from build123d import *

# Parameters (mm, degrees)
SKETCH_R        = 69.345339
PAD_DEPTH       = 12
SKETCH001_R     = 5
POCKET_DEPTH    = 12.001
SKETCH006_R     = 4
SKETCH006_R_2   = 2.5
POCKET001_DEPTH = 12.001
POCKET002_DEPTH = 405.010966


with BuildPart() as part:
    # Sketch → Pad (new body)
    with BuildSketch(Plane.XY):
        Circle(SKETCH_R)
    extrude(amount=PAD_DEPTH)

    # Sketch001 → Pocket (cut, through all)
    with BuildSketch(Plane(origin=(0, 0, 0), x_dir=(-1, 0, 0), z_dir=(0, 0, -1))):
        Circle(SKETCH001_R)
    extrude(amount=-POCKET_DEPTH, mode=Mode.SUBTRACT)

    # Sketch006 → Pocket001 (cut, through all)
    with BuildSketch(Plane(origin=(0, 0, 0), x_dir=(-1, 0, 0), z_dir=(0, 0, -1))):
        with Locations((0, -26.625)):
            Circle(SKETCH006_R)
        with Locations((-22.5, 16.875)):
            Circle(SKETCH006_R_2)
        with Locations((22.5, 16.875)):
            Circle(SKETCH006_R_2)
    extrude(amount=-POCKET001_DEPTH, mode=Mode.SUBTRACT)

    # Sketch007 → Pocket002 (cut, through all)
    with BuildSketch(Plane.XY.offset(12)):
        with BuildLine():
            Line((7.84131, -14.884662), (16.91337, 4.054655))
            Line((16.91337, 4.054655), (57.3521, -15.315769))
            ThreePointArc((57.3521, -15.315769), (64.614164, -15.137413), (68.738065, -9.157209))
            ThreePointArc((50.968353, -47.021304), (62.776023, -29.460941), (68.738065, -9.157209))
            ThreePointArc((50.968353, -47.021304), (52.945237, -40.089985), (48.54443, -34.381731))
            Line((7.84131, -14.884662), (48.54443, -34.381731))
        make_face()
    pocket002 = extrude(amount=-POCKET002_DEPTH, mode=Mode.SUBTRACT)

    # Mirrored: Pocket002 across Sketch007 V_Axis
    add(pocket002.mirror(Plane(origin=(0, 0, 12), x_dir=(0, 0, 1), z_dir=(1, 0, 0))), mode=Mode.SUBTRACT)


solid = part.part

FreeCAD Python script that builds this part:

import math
import FreeCAD as App
import Part
import Sketcher
Q = App.Units.Quantity

doc = App.newDocument("Part")
params = doc.addObject("Spreadsheet::Sheet", "Params")
for row, (alias, value) in enumerate([
    ("pad1_length", "12 mm"),
    ("sketch2_diameter", "10 mm"),
    ("sketch3_diameter", "8 mm"),
    ("sketch3_diameter2", "5 mm"),
    ("sketch4_radius", "8 mm"),
    ("sketch4_radius2", "8 mm"),
    ("sketch4_length", "21 mm"),
], start=1):
    params.set(f"A{row}", alias)
    params.set(f"B{row}", "=" + value)
    params.setAlias(f"B{row}", alias)

body = doc.addObject("PartDesign::Body", "Body")

# Sketch on XY plane
sketch1 = body.newObject("Sketcher::SketchObject", "Sketch")
sketch1.AttachmentSupport = (doc.getObject("XY_Plane"), [""])
sketch1.MapMode = "FlatFace"
sketch1.addGeometry(Part.Circle(App.Vector(0, 0, 0), App.Vector(0, 0, 1), 69), False)
sketch1.addConstraint(Sketcher.Constraint("Coincident", 0, 3, -1, 1))
sketch1.addConstraint(Sketcher.Constraint("Diameter", 0, Q("138.690678 mm")))
pad1 = body.newObject("PartDesign::Pad", "Pad")
pad1.Profile = sketch1
pad1.setExpression("Length", "Params.pad1_length")

# Sketch on XY plane
sketch2 = body.newObject("Sketcher::SketchObject", "Sketch001")
sketch2.AttachmentSupport = (doc.getObject("XY_Plane"), [""])
sketch2.MapMode = "FlatFace"
sketch2.addGeometry(Part.Circle(App.Vector(0, 0, 0), App.Vector(0, 0, 1), 5), False)
sketch2.addConstraint(Sketcher.Constraint("Coincident", 0, 3, -1, 1))
sketch2.addConstraint(Sketcher.Constraint("Diameter", 0, Q("10 mm")))
sketch2.setExpression("Constraints[1]", "Params.sketch2_diameter")
pocket1 = body.newObject("PartDesign::Pocket", "Pocket")
pocket1.Profile = sketch2
pocket1.Type = "ThroughAll"
pocket1.Reversed = True

# Sketch on XY plane
sketch3 = body.newObject("Sketcher::SketchObject", "Sketch002")
sketch3.AttachmentSupport = (doc.getObject("XY_Plane"), [""])
sketch3.MapMode = "FlatFace"
sketch3.addGeometry(Part.Circle(App.Vector(0, -26.6, 0), App.Vector(0, 0, 1), 4), False)
sketch3.addGeometry(Part.Circle(App.Vector(22.5, 16.9, 0), App.Vector(0, 0, 1), 2.5), False)
sketch3.addGeometry(Part.Circle(App.Vector(-22.5, 16.9, 0), App.Vector(0, 0, 1), 2.5), False)
sketch3.addConstraint(Sketcher.Constraint("Equal", 1, 2))
sketch3.addConstraint(Sketcher.Constraint("Symmetric", 1, 3, 2, 3, -2))
sketch3.addConstraint(Sketcher.Constraint("PointOnObject", 0, 3, -2))
sketch3.addConstraint(Sketcher.Constraint("Diameter", 0, Q("8 mm")))
sketch3.addConstraint(Sketcher.Constraint("Diameter", 1, Q("5 mm")))
sketch3.addConstraint(Sketcher.Constraint("DistanceX", 2, 3, 1, 3, Q("45 mm")))
sketch3.addConstraint(Sketcher.Constraint("DistanceY", 0, 3, 1, 3, Q("43.5 mm")))
sketch3.addConstraint(Sketcher.Constraint("DistanceY", 0, 3, -1, 1, Q("26.625 mm")))
sketch3.setExpression("Constraints[3]", "Params.sketch3_diameter")
sketch3.setExpression("Constraints[4]", "Params.sketch3_diameter2")
pocket2 = body.newObject("PartDesign::Pocket", "Pocket001")
pocket2.Profile = sketch3
pocket2.Type = "ThroughAll"
pocket2.Reversed = True

# Sketch on XY plane
sketch4 = body.newObject("Sketcher::SketchObject", "Sketch003")
sketch4.AttachmentSupport = (doc.getObject("XY_Plane"), [""])
sketch4.MapMode = "FlatFace"
sketch4.AttachmentOffset = App.Placement(App.Vector(0, 0, 12), App.Rotation())
sketch4.addGeometry(Part.LineSegment(App.Vector(16.91337, 4.054655, 0), App.Vector(7.84131, -14.884662, 0)), False)
sketch4.addGeometry(Part.LineSegment(App.Vector(7.84131, -14.884662, 0), App.Vector(48.54443, -34.381731, 0)), False)
sketch4.addGeometry(Part.ArcOfCircle(Part.Circle(App.Vector(45.088406, -41.596709, 0), App.Vector(0, 0, 1), 8), math.radians(-42.69335), math.radians(64.405261)), False)
sketch4.addGeometry(Part.ArcOfCircle(Part.Circle(App.Vector(0.000009, -0.000004, 0), App.Vector(0, 0, 1), 69.34533), math.radians(-42.693361), math.radians(-7.588199)), False)
sketch4.addGeometry(Part.ArcOfCircle(Part.Circle(App.Vector(60.808123, -8.100791, 0), App.Vector(0, 0, 1), 8), math.radians(-115.594731), math.radians(-7.588203)), False)
sketch4.addGeometry(Part.LineSegment(App.Vector(57.3521, -15.315769, 0), App.Vector(16.91337, 4.054655, 0)), False)
sketch4.addConstraint(Sketcher.Constraint("Coincident", 0, 2, 1, 1))
sketch4.addConstraint(Sketcher.Constraint("Coincident", 1, 2, 2, 2))
sketch4.addConstraint(Sketcher.Constraint("Coincident", 2, 1, 3, 1))
sketch4.addConstraint(Sketcher.Constraint("Coincident", 3, 2, 4, 2))
sketch4.addConstraint(Sketcher.Constraint("Coincident", 4, 1, 5, 1))
sketch4.addConstraint(Sketcher.Constraint("Coincident", 5, 2, 0, 1))
sketch4.addConstraint(Sketcher.Constraint("Coincident", 3, 3, -1, 1))
sketch4.addConstraint(Sketcher.Constraint("Radius", 2, Q("8 mm")))
sketch4.addConstraint(Sketcher.Constraint("Radius", 4, Q("8 mm")))
sketch4.addConstraint(Sketcher.Constraint("Distance", 0, Q("21 mm")))
sketch4.addConstraint(Sketcher.Constraint("Radius", 3, Q("69.34533 mm")))
sketch4.addConstraint(Sketcher.Constraint("DistanceX", -1, 1, 4, 1, Q("57.3521 mm")))
sketch4.addConstraint(Sketcher.Constraint("DistanceX", 3, 3, 0, 2, Q("7.841301 mm")))
sketch4.addConstraint(Sketcher.Constraint("DistanceY", 2, 1, 3, 3, Q("47.0213 mm")))
sketch4.addConstraint(Sketcher.Constraint("DistanceY", 2, 3, 3, 2, Q("32.4395 mm")))
sketch4.addConstraint(Sketcher.Constraint("DistanceY", 2, 3, -1, 1, Q("41.596709 mm")))
sketch4.addConstraint(Sketcher.Constraint("DistanceY", 4, 3, -1, 1, Q("8.100791 mm")))
sketch4.addConstraint(Sketcher.Constraint("DistanceX", -1, 1, 1, 2, Q("48.54443 mm")))
sketch4.addConstraint(Sketcher.Constraint("DistanceX", -1, 1, 5, 2, Q("16.91337 mm")))
sketch4.addConstraint(Sketcher.Constraint("DistanceY", 0, 2, 3, 3, Q("14.884658 mm")))
sketch4.setExpression("Constraints[7]", "Params.sketch4_radius")
sketch4.setExpression("Constraints[8]", "Params.sketch4_radius2")
sketch4.setExpression("Constraints[9]", "Params.sketch4_length")
pocket3 = body.newObject("PartDesign::Pocket", "Pocket002")
pocket3.Profile = sketch4
pocket3.Type = "ThroughAll"
doc.recompute()

mirrored = body.newObject("PartDesign::Mirrored", "Mirrored")
mirrored.Originals = [pocket3]
mirrored.MirrorPlane = (doc.getObject("YZ_Plane"), [""])
body.Tip = mirrored

doc.recompute()
